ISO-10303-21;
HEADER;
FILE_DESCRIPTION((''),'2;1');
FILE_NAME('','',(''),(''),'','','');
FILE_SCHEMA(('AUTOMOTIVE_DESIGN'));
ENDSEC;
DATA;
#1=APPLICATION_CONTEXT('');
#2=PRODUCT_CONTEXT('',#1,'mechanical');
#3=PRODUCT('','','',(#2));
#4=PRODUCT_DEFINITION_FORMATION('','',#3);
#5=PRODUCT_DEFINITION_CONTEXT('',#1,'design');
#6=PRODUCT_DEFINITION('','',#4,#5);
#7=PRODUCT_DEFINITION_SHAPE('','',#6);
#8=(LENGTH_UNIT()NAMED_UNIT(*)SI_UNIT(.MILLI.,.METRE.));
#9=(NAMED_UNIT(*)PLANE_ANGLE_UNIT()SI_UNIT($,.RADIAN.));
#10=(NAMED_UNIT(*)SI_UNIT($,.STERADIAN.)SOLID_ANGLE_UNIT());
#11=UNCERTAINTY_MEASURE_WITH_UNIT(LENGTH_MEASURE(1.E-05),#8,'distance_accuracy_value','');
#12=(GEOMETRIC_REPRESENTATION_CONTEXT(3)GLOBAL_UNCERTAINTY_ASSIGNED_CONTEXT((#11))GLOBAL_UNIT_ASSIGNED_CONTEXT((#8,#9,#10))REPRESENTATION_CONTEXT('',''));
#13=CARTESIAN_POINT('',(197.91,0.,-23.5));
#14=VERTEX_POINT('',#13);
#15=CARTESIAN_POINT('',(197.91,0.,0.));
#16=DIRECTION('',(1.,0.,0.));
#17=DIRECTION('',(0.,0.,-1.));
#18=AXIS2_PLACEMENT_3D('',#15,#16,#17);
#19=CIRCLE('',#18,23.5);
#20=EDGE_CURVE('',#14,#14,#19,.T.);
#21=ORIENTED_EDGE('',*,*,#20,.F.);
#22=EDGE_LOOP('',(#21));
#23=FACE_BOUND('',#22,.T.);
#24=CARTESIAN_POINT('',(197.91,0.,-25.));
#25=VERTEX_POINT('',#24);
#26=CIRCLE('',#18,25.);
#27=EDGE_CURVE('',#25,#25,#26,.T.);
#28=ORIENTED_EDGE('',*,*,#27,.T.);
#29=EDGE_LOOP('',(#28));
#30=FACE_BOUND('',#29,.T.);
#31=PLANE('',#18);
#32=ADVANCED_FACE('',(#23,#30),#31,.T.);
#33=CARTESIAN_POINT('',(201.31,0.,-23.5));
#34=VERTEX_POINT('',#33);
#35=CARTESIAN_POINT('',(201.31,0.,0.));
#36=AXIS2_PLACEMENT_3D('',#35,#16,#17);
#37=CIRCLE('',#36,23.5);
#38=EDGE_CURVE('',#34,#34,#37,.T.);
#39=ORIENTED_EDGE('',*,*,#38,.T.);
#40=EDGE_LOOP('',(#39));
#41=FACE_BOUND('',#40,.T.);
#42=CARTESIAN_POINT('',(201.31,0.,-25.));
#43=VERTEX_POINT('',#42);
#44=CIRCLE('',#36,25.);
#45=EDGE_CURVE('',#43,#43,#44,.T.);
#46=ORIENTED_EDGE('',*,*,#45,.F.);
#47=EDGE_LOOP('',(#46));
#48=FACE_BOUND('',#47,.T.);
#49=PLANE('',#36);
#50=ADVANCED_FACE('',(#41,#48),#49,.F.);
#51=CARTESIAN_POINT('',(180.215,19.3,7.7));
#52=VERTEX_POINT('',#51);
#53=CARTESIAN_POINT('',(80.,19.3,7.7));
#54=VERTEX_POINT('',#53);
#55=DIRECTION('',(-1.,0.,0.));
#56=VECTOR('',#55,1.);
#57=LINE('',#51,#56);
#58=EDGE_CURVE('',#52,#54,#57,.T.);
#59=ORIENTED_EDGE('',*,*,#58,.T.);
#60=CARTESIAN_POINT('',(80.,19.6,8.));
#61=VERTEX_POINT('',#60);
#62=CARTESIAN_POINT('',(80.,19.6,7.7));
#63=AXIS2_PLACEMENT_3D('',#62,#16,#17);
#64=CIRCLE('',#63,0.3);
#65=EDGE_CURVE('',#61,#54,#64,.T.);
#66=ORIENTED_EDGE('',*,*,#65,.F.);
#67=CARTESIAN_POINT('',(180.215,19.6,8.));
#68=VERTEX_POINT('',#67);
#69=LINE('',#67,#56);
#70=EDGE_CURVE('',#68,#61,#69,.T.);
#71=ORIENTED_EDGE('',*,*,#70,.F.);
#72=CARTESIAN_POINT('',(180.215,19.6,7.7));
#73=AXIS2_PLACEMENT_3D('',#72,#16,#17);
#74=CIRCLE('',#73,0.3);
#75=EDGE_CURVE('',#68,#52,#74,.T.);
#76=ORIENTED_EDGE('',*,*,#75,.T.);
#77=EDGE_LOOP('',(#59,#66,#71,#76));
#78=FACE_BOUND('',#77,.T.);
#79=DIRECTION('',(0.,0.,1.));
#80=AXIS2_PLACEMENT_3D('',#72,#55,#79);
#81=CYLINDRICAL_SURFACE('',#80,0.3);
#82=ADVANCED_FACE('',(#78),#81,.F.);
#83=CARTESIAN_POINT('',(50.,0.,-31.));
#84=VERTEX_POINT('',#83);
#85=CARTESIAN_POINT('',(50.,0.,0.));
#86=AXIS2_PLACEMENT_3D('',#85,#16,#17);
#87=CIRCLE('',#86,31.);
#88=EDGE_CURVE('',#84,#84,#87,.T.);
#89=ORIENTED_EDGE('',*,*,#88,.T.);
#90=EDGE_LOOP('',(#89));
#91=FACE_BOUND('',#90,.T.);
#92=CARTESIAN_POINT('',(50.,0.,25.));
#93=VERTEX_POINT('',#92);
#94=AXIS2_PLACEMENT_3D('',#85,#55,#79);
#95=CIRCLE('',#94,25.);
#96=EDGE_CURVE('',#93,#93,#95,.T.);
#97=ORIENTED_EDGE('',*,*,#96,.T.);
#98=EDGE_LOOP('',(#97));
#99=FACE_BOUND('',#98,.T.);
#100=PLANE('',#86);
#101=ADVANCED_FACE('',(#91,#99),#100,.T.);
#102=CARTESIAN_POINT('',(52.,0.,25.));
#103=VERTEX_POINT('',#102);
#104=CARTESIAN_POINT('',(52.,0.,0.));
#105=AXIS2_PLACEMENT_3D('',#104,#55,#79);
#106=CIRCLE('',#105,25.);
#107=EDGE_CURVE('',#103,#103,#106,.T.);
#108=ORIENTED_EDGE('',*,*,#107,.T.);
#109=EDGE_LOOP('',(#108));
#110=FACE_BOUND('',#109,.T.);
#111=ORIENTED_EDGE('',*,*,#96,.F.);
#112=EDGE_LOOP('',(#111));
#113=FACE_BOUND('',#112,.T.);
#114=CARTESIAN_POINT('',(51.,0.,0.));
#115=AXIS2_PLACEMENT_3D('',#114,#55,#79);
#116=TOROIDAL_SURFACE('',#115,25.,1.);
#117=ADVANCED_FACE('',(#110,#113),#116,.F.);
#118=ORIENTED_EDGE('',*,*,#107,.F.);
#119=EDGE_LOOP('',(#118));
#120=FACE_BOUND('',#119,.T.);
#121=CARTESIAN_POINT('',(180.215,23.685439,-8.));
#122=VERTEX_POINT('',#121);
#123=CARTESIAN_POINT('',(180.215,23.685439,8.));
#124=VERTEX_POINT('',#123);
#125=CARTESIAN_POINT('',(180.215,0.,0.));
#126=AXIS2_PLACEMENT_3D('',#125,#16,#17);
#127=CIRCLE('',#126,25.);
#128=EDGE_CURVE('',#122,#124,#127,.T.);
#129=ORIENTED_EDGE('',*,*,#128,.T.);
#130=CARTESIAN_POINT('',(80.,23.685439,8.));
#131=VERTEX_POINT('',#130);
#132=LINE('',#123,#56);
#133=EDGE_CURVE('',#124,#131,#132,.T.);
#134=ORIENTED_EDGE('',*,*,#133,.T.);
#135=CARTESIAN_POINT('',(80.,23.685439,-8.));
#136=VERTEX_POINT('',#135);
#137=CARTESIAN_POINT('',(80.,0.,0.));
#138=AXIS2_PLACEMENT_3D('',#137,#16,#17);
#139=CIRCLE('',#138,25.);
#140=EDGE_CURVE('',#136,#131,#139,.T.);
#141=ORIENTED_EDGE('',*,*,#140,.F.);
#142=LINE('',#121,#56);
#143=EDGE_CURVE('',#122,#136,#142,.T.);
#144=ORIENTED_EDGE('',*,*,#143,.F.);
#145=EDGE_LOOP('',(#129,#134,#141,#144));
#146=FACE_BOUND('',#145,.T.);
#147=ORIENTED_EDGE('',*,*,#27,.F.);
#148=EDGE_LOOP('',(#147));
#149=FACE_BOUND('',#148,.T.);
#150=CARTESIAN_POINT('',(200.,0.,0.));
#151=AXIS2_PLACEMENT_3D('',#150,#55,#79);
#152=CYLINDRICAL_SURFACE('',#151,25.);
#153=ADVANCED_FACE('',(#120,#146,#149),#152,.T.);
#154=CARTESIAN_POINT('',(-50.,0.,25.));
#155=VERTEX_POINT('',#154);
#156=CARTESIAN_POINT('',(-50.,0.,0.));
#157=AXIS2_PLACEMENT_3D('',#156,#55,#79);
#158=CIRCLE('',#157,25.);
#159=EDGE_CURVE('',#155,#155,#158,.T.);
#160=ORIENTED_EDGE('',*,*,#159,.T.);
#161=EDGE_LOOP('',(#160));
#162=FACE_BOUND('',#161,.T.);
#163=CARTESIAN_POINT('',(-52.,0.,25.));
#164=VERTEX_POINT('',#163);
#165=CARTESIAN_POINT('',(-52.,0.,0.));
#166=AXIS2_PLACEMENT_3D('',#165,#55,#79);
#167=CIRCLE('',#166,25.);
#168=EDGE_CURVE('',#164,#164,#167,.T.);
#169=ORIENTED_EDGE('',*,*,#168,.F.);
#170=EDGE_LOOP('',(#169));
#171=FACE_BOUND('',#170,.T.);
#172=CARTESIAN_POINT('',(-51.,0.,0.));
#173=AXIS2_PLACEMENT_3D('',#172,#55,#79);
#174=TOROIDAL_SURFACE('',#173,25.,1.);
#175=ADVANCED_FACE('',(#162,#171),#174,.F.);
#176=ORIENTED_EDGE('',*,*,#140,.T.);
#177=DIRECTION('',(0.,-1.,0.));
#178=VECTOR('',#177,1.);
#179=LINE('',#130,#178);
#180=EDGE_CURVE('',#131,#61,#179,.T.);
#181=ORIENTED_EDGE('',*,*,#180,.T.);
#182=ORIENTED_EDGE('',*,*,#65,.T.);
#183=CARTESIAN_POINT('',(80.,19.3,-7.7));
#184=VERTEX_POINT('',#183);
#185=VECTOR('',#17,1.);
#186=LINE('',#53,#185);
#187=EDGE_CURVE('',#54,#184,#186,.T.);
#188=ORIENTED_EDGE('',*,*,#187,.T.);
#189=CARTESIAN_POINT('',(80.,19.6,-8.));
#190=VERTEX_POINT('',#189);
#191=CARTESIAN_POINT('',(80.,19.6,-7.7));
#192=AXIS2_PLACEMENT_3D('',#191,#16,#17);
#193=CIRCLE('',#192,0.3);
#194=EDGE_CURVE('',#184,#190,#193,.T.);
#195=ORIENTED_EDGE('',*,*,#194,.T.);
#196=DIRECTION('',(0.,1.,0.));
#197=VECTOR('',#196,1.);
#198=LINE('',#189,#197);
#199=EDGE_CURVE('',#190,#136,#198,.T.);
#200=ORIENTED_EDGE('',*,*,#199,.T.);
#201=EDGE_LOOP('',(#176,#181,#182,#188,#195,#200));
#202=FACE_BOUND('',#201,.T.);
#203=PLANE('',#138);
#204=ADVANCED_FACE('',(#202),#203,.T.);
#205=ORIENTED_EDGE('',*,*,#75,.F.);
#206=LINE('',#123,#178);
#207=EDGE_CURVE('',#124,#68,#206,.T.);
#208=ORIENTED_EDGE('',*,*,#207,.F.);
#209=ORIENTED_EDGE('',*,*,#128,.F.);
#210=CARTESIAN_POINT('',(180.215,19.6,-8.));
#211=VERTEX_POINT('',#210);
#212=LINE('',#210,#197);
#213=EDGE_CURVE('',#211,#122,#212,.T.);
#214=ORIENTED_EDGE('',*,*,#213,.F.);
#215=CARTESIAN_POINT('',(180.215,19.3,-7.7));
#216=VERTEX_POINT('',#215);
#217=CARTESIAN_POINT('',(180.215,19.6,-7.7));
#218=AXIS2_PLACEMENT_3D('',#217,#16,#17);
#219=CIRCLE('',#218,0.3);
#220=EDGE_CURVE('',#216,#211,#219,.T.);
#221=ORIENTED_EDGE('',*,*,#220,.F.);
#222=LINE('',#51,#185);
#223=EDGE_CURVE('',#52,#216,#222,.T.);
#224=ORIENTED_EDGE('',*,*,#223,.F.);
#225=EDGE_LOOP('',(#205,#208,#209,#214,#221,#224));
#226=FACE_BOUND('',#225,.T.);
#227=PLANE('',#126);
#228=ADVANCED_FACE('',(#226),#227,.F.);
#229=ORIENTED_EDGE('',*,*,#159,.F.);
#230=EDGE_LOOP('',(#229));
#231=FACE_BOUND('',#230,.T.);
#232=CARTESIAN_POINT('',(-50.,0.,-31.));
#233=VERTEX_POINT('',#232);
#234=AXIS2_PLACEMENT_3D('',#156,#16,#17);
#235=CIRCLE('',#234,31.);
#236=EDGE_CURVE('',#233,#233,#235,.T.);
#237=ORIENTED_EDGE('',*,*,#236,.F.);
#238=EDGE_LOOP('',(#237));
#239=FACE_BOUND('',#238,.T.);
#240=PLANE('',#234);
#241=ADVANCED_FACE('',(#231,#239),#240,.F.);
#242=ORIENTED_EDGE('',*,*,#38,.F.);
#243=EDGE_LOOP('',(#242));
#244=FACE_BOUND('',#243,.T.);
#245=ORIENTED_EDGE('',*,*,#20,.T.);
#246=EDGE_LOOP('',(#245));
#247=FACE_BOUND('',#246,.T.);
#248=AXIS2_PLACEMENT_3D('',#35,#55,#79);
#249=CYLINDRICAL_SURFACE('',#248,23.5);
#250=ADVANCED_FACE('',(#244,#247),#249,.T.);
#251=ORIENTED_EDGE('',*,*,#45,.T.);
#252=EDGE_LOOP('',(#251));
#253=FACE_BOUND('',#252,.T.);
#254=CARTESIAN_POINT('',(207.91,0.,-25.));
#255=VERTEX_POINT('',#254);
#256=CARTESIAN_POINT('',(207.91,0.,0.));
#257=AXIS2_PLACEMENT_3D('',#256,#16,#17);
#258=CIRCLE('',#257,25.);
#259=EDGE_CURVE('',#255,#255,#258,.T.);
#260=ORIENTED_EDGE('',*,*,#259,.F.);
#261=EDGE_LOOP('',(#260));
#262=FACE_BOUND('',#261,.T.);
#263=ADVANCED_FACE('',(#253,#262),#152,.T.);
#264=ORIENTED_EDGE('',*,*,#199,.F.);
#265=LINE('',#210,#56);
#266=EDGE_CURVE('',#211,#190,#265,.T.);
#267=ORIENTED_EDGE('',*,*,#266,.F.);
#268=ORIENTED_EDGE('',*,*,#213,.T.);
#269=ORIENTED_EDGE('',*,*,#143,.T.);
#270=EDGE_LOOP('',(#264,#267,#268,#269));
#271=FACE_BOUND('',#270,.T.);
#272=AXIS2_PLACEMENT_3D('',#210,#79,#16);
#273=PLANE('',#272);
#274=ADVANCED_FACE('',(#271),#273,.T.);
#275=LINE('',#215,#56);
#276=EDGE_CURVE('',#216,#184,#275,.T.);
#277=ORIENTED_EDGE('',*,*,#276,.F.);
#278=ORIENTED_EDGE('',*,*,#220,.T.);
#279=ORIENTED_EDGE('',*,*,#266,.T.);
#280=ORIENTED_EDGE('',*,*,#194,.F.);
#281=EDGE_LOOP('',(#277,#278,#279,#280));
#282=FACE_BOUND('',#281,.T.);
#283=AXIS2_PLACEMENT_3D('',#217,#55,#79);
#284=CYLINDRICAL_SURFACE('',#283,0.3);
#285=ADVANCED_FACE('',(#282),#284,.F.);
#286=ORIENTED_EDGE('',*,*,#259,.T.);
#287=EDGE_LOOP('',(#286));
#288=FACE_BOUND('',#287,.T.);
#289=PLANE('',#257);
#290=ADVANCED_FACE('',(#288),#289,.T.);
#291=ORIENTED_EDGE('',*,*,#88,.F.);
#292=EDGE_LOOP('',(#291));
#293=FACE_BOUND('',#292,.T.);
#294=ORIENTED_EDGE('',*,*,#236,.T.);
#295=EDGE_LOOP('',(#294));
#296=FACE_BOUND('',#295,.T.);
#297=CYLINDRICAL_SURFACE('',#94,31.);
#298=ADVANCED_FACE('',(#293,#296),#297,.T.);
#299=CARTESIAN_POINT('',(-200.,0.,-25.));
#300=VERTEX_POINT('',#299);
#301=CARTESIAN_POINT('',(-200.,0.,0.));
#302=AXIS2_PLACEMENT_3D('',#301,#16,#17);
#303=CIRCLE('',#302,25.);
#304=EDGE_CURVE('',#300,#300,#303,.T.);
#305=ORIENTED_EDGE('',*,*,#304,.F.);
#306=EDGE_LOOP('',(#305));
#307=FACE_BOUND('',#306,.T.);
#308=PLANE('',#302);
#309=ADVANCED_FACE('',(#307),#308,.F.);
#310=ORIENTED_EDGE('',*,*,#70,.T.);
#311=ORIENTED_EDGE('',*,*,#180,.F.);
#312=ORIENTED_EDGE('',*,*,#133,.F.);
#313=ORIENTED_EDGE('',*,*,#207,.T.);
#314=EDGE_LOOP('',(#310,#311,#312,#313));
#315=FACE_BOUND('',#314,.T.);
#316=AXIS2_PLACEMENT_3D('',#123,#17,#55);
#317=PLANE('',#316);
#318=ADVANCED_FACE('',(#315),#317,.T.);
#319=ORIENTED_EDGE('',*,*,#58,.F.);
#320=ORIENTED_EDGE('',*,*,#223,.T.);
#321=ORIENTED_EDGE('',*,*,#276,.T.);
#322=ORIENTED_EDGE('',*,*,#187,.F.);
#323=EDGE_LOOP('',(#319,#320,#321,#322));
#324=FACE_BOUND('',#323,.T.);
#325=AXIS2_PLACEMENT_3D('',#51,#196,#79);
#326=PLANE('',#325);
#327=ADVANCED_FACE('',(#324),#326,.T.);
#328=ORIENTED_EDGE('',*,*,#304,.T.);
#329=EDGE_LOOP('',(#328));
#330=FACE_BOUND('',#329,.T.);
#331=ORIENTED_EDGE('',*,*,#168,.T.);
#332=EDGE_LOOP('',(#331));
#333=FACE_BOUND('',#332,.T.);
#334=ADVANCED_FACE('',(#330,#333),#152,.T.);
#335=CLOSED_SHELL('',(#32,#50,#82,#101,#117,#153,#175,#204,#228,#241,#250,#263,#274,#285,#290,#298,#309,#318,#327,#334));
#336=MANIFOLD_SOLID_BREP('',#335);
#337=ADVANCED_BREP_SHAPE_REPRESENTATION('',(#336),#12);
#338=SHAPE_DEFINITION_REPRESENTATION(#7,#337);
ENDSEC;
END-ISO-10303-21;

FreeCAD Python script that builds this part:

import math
import FreeCAD as App
import Part
import Sketcher
from FreeCAD import Vector
Q = App.Units.Quantity

doc = App.newDocument("Part")
body = doc.addObject("PartDesign::Body", "Body")

sketch1 = body.newObject("Sketcher::SketchObject", "Sketch")
sketch1.AttachmentSupport = (doc.getObject("YZ_Plane"), [""])
sketch1.MapMode = "FlatFace"
sketch1.addGeometry(Part.Circle(Vector(0, 0, 0), Vector(0, 0, 1), 31), False)
sketch1.addConstraint([
    Sketcher.Constraint("Coincident", 0, 3, -1, 1),
    Sketcher.Constraint("Diameter", 0, Q("62 mm")),
])
pad1 = body.newObject("PartDesign::Pad", "Pad")
pad1.Profile = sketch1
pad1.Length = 100
pad1.Midplane = True

sketch2 = body.newObject("Sketcher::SketchObject", "Sketch001")
sketch2.AttachmentSupport = (doc.getObject("YZ_Plane"), [""])
sketch2.MapMode = "FlatFace"
sketch2.addGeometry(Part.Circle(Vector(0, 0, 0), Vector(0, 0, 1), 25), False)
sketch2.addConstraint([
    Sketcher.Constraint("Coincident", 0, 3, -1, 1),
    Sketcher.Constraint("Diameter", 0, Q("50 mm")),
])
pad2 = body.newObject("PartDesign::Pad", "Pad001")
pad2.Profile = sketch2
pad2.Length = 400
pad2.Midplane = True

sketch3 = body.newObject("Sketcher::SketchObject", "Sketch002")
sketch3.AttachmentSupport = (doc.getObject("XY_Plane"), [""])
sketch3.MapMode = "FlatFace"
sketch3.addGeometry([
    Part.LineSegment(Vector(52, 25, 0), Vector(50, 25, 0)),
    Part.ArcOfCircle(Part.Circle(Vector(51, 25, 0), Vector(0, 0, 1), 1), math.radians(180), math.radians(360)),
    Part.LineSegment(Vector(-50, 25, 0), Vector(-52, 25, 0)),
    Part.ArcOfCircle(Part.Circle(Vector(-51, 25, 0), Vector(0, 0, 1), 1), math.radians(180), math.radians(360)),
], False)
sketch3.addConstraint([
    Sketcher.Constraint("Coincident", 0, 1, 1, 2),
    Sketcher.Constraint("Coincident", 1, 1, 0, 2),
    Sketcher.Constraint("Coincident", 2, 1, 3, 2),
    Sketcher.Constraint("Coincident", 3, 1, 2, 2),
    Sketcher.Constraint("Horizontal", 0),
    Sketcher.Constraint("Horizontal", 2),
    Sketcher.Constraint("Equal", 1, 3),
    Sketcher.Constraint("Symmetric", 1, 3, 3, 3, -2),
    Sketcher.Constraint("Horizontal", 3, 3, 0, 1),
    Sketcher.Constraint("Horizontal", 1, 1, 2, 1),
    Sketcher.Constraint("Radius", 1, Q("1 mm")),
    Sketcher.Constraint("DistanceX", -1, 1, 1, 3, Q("51 mm")),
    Sketcher.Constraint("DistanceY", -1, 1, 1, 3, Q("25 mm")),
])
groove = body.newObject("PartDesign::Groove", "Groove")
groove.Profile = sketch3
groove.ReferenceAxis = (sketch3, ["H_Axis"])
groove.Angle = 360

sketch4 = body.newObject("Sketcher::SketchObject", "Sketch003")
sketch4.AttachmentSupport = (doc.getObject("YZ_Plane"), [""])
sketch4.MapMode = "FlatFace"
sketch4.AttachmentOffset = App.Placement(Vector(0, 0, 180.215), App.Rotation())
sketch4.addGeometry([
    Part.LineSegment(Vector(23.69, 8, 0), Vector(19.6, 8, 0)),
    Part.ArcOfCircle(Part.Circle(Vector(19.6, 7.7, 0), Vector(0, 0, 1), 0.3), math.radians(90), math.radians(180)),
    Part.LineSegment(Vector(19.3, 7.7, 0), Vector(19.3, -7.7, 0)),
    Part.ArcOfCircle(Part.Circle(Vector(19.6, -7.7, 0), Vector(0, 0, 1), 0.3), math.radians(-180), math.radians(-90)),
    Part.LineSegment(Vector(19.6, -8, 0), Vector(23.69, -8, 0)),
    Part.ArcOfCircle(Part.Circle(Vector(0, 0, 0), Vector(0, 0, 1), 25), math.radians(-19), math.radians(19)),
], False)
sketch4.addConstraint([
    Sketcher.Constraint("Tangent", 0, 2, 1, 1),
    Sketcher.Constraint("Tangent", 1, 2, 2, 1),
    Sketcher.Constraint("Tangent", 2, 2, 3, 1),
    Sketcher.Constraint("Tangent", 3, 2, 4, 1),
    Sketcher.Constraint("Coincident", 4, 2, 5, 1),
    Sketcher.Constraint("Coincident", 5, 2, 0, 1),
    Sketcher.Constraint("Horizontal", 0),
    Sketcher.Constraint("Vertical", 2),
    Sketcher.Constraint("Horizontal", 4),
    Sketcher.Constraint("Coincident", 5, 3, -1, 1),
    Sketcher.Constraint("Equal", 1, 3),
    Sketcher.Constraint("Vertical", 4, 2, 5, 2),
    Sketcher.Constraint("Radius", 5, Q("25 mm")),
    Sketcher.Constraint("Radius", 1, Q("0.3 mm")),
    Sketcher.Constraint("DistanceY", 2, 2, 2, 1, Q("15.4 mm")),
    Sketcher.Constraint("DistanceX", -1, 1, 1, 3, Q("19.6 mm")),
])
pocket1 = body.newObject("PartDesign::Pocket", "Pocket")
pocket1.Profile = sketch4
pocket1.Length = 100.215

sketch5 = body.newObject("Sketcher::SketchObject", "Sketch004")
sketch5.AttachmentSupport = (doc.getObject("YZ_Plane"), [""])
sketch5.MapMode = "FlatFace"
sketch5.AttachmentOffset = App.Placement(Vector(0, 0, 207.91), App.Rotation())
sketch5.addGeometry(Part.Circle(Vector(0, 0, 0), Vector(0, 0, 1), 25), False)
sketch5.addConstraint([
    Sketcher.Constraint("Coincident", 0, 3, -1, 1),
    Sketcher.Constraint("Diameter", 0, Q("50 mm")),
])
pad3 = body.newObject("PartDesign::Pad", "Pad002")
pad3.Profile = sketch5
pad3.Length = 7.91
pad3.Reversed = True

sketch6 = body.newObject("Sketcher::SketchObject", "Sketch005")
sketch6.AttachmentSupport = (doc.getObject("YZ_Plane"), [""])
sketch6.MapMode = "FlatFace"
sketch6.AttachmentOffset = App.Placement(Vector(0, 0, 201.31), App.Rotation())
sketch6.addGeometry([
    Part.Circle(Vector(0, 0, 0), Vector(0, 0, 1), 25),
    Part.Circle(Vector(0, 0, 0), Vector(0, 0, 1), 24),
], False)
sketch6.addConstraint([
    Sketcher.Constraint("Coincident", 0, 3, -1, 1),
    Sketcher.Constraint("Coincident", 1, 3, -1, 1),
    Sketcher.Constraint("Diameter", 0, Q("50 mm")),
    Sketcher.Constraint("Diameter", 1, Q("47 mm")),
])
pocket2 = body.newObject("PartDesign::Pocket", "Pocket001")
pocket2.Profile = sketch6
pocket2.Length = 3.4

doc.recompute()
